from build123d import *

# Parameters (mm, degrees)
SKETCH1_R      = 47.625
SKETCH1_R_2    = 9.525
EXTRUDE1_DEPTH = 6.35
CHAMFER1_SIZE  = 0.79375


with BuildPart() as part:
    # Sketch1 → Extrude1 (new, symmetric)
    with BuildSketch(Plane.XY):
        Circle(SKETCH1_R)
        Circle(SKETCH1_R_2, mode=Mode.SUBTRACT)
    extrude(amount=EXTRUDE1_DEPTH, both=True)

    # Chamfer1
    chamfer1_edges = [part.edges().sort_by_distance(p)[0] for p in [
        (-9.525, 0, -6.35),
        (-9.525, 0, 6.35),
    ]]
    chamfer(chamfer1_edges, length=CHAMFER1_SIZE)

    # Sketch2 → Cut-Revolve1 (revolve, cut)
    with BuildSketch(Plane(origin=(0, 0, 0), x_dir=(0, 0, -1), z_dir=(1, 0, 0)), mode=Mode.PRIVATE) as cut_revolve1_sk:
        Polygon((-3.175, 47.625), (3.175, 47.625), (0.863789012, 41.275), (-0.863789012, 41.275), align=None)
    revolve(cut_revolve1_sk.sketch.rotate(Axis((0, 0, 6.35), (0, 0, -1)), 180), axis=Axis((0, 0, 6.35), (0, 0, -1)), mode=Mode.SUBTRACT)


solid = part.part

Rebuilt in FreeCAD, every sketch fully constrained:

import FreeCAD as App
import Part
import Sketcher

V = App.Vector
Q = App.Units.Quantity


def edges_at(feature, points):
    """Names of the edges that pass closest to the given points."""
    edges = feature.Shape.Edges
    near = lambda p: min(range(len(edges)), key=lambda i: edges[i].distToShape(Part.Vertex(*p))[0])
    return sorted({f"Edge{near(p) + 1}" for p in points})

doc = App.newDocument("Part")
body = doc.addObject("PartDesign::Body", "Body")

# Sketch on XY plane
sketch1 = doc.addObject("Sketcher::SketchObject", "Sketch")
body.addObject(sketch1)
sketch1.AttachmentSupport = (doc.XY_Plane, [""])
sketch1.MapMode = "FlatFace"
sketch1.addGeometry([
    Part.Circle(V(0, 0, 0), V(0, 0, 1), 47.625),
    Part.Circle(V(0, 0, 0), V(0, 0, 1), 9.525),
], False)
sketch1.addConstraint([
    Sketcher.Constraint("Coincident", 0, 3, -1, 1),
    Sketcher.Constraint("Coincident", 1, 3, -1, 1),
    Sketcher.Constraint("Diameter", 0, Q("3.75 in")),
    Sketcher.Constraint("Diameter", 1, Q("0.75 in")),
])
pad1 = doc.addObject("PartDesign::Pad", "Pad")
body.addObject(pad1)
pad1.Profile = sketch1
pad1.Length = Q("0.5 in")
pad1.Midplane = True
doc.recompute()

chamfer = doc.addObject("PartDesign::Chamfer", "Chamfer")
body.addObject(chamfer)
chamfer.Base = (pad1, edges_at(pad1, [(-9.525, 0, -6.35), (-9.525, 0, 6.35)]))
chamfer.Size = Q("0.03125 in")

# Sketch on YZ plane
sketch2 = doc.addObject("Sketcher::SketchObject", "Sketch001")
body.addObject(sketch2)
sketch2.AttachmentSupport = (doc.YZ_Plane, [""])
sketch2.MapMode = "FlatFace"
sketch2.addGeometry([
    Part.LineSegment(V(47.625, -3.175, 0), V(47.625, 3.175, 0)),
    Part.LineSegment(V(47.625, 3.175, 0), V(41.275, 0.863789, 0)),
    Part.LineSegment(V(41.275, 0.863789, 0), V(41.275, -0.863789, 0)),
    Part.LineSegment(V(41.275, -0.863789, 0), V(47.625, -3.175, 0)),
], False)
sketch2.addConstraint([
    Sketcher.Constraint("Coincident", 0, 2, 1, 1),
    Sketcher.Constraint("Coincident", 1, 2, 2, 1),
    Sketcher.Constraint("Coincident", 2, 2, 3, 1),
    Sketcher.Constraint("Coincident", 3, 2, 0, 1),
    Sketcher.Constraint("Vertical", 0),
    Sketcher.Constraint("Vertical", 2),
    Sketcher.Constraint("Equal", 1, 3),
    Sketcher.Constraint("Angle", 1, Q("-160 deg")),
    Sketcher.Constraint("DistanceY", 0, 1, 0, 2, Q("0.25 in")),
    Sketcher.Constraint("DistanceX", 1, 2, 0, 2, Q("0.25 in")),
    Sketcher.Constraint("DistanceX", -1, 1, 0, 2, Q("1.875 in")),
    Sketcher.Constraint("DistanceY", -1, 1, 0, 2, Q("0.125 in")),
])
groove = doc.addObject("PartDesign::Groove", "Groove")
body.addObject(groove)
groove.Profile = sketch2
groove.ReferenceAxis = (sketch2, ["V_Axis"])
groove.Angle = 360

doc.recompute()
